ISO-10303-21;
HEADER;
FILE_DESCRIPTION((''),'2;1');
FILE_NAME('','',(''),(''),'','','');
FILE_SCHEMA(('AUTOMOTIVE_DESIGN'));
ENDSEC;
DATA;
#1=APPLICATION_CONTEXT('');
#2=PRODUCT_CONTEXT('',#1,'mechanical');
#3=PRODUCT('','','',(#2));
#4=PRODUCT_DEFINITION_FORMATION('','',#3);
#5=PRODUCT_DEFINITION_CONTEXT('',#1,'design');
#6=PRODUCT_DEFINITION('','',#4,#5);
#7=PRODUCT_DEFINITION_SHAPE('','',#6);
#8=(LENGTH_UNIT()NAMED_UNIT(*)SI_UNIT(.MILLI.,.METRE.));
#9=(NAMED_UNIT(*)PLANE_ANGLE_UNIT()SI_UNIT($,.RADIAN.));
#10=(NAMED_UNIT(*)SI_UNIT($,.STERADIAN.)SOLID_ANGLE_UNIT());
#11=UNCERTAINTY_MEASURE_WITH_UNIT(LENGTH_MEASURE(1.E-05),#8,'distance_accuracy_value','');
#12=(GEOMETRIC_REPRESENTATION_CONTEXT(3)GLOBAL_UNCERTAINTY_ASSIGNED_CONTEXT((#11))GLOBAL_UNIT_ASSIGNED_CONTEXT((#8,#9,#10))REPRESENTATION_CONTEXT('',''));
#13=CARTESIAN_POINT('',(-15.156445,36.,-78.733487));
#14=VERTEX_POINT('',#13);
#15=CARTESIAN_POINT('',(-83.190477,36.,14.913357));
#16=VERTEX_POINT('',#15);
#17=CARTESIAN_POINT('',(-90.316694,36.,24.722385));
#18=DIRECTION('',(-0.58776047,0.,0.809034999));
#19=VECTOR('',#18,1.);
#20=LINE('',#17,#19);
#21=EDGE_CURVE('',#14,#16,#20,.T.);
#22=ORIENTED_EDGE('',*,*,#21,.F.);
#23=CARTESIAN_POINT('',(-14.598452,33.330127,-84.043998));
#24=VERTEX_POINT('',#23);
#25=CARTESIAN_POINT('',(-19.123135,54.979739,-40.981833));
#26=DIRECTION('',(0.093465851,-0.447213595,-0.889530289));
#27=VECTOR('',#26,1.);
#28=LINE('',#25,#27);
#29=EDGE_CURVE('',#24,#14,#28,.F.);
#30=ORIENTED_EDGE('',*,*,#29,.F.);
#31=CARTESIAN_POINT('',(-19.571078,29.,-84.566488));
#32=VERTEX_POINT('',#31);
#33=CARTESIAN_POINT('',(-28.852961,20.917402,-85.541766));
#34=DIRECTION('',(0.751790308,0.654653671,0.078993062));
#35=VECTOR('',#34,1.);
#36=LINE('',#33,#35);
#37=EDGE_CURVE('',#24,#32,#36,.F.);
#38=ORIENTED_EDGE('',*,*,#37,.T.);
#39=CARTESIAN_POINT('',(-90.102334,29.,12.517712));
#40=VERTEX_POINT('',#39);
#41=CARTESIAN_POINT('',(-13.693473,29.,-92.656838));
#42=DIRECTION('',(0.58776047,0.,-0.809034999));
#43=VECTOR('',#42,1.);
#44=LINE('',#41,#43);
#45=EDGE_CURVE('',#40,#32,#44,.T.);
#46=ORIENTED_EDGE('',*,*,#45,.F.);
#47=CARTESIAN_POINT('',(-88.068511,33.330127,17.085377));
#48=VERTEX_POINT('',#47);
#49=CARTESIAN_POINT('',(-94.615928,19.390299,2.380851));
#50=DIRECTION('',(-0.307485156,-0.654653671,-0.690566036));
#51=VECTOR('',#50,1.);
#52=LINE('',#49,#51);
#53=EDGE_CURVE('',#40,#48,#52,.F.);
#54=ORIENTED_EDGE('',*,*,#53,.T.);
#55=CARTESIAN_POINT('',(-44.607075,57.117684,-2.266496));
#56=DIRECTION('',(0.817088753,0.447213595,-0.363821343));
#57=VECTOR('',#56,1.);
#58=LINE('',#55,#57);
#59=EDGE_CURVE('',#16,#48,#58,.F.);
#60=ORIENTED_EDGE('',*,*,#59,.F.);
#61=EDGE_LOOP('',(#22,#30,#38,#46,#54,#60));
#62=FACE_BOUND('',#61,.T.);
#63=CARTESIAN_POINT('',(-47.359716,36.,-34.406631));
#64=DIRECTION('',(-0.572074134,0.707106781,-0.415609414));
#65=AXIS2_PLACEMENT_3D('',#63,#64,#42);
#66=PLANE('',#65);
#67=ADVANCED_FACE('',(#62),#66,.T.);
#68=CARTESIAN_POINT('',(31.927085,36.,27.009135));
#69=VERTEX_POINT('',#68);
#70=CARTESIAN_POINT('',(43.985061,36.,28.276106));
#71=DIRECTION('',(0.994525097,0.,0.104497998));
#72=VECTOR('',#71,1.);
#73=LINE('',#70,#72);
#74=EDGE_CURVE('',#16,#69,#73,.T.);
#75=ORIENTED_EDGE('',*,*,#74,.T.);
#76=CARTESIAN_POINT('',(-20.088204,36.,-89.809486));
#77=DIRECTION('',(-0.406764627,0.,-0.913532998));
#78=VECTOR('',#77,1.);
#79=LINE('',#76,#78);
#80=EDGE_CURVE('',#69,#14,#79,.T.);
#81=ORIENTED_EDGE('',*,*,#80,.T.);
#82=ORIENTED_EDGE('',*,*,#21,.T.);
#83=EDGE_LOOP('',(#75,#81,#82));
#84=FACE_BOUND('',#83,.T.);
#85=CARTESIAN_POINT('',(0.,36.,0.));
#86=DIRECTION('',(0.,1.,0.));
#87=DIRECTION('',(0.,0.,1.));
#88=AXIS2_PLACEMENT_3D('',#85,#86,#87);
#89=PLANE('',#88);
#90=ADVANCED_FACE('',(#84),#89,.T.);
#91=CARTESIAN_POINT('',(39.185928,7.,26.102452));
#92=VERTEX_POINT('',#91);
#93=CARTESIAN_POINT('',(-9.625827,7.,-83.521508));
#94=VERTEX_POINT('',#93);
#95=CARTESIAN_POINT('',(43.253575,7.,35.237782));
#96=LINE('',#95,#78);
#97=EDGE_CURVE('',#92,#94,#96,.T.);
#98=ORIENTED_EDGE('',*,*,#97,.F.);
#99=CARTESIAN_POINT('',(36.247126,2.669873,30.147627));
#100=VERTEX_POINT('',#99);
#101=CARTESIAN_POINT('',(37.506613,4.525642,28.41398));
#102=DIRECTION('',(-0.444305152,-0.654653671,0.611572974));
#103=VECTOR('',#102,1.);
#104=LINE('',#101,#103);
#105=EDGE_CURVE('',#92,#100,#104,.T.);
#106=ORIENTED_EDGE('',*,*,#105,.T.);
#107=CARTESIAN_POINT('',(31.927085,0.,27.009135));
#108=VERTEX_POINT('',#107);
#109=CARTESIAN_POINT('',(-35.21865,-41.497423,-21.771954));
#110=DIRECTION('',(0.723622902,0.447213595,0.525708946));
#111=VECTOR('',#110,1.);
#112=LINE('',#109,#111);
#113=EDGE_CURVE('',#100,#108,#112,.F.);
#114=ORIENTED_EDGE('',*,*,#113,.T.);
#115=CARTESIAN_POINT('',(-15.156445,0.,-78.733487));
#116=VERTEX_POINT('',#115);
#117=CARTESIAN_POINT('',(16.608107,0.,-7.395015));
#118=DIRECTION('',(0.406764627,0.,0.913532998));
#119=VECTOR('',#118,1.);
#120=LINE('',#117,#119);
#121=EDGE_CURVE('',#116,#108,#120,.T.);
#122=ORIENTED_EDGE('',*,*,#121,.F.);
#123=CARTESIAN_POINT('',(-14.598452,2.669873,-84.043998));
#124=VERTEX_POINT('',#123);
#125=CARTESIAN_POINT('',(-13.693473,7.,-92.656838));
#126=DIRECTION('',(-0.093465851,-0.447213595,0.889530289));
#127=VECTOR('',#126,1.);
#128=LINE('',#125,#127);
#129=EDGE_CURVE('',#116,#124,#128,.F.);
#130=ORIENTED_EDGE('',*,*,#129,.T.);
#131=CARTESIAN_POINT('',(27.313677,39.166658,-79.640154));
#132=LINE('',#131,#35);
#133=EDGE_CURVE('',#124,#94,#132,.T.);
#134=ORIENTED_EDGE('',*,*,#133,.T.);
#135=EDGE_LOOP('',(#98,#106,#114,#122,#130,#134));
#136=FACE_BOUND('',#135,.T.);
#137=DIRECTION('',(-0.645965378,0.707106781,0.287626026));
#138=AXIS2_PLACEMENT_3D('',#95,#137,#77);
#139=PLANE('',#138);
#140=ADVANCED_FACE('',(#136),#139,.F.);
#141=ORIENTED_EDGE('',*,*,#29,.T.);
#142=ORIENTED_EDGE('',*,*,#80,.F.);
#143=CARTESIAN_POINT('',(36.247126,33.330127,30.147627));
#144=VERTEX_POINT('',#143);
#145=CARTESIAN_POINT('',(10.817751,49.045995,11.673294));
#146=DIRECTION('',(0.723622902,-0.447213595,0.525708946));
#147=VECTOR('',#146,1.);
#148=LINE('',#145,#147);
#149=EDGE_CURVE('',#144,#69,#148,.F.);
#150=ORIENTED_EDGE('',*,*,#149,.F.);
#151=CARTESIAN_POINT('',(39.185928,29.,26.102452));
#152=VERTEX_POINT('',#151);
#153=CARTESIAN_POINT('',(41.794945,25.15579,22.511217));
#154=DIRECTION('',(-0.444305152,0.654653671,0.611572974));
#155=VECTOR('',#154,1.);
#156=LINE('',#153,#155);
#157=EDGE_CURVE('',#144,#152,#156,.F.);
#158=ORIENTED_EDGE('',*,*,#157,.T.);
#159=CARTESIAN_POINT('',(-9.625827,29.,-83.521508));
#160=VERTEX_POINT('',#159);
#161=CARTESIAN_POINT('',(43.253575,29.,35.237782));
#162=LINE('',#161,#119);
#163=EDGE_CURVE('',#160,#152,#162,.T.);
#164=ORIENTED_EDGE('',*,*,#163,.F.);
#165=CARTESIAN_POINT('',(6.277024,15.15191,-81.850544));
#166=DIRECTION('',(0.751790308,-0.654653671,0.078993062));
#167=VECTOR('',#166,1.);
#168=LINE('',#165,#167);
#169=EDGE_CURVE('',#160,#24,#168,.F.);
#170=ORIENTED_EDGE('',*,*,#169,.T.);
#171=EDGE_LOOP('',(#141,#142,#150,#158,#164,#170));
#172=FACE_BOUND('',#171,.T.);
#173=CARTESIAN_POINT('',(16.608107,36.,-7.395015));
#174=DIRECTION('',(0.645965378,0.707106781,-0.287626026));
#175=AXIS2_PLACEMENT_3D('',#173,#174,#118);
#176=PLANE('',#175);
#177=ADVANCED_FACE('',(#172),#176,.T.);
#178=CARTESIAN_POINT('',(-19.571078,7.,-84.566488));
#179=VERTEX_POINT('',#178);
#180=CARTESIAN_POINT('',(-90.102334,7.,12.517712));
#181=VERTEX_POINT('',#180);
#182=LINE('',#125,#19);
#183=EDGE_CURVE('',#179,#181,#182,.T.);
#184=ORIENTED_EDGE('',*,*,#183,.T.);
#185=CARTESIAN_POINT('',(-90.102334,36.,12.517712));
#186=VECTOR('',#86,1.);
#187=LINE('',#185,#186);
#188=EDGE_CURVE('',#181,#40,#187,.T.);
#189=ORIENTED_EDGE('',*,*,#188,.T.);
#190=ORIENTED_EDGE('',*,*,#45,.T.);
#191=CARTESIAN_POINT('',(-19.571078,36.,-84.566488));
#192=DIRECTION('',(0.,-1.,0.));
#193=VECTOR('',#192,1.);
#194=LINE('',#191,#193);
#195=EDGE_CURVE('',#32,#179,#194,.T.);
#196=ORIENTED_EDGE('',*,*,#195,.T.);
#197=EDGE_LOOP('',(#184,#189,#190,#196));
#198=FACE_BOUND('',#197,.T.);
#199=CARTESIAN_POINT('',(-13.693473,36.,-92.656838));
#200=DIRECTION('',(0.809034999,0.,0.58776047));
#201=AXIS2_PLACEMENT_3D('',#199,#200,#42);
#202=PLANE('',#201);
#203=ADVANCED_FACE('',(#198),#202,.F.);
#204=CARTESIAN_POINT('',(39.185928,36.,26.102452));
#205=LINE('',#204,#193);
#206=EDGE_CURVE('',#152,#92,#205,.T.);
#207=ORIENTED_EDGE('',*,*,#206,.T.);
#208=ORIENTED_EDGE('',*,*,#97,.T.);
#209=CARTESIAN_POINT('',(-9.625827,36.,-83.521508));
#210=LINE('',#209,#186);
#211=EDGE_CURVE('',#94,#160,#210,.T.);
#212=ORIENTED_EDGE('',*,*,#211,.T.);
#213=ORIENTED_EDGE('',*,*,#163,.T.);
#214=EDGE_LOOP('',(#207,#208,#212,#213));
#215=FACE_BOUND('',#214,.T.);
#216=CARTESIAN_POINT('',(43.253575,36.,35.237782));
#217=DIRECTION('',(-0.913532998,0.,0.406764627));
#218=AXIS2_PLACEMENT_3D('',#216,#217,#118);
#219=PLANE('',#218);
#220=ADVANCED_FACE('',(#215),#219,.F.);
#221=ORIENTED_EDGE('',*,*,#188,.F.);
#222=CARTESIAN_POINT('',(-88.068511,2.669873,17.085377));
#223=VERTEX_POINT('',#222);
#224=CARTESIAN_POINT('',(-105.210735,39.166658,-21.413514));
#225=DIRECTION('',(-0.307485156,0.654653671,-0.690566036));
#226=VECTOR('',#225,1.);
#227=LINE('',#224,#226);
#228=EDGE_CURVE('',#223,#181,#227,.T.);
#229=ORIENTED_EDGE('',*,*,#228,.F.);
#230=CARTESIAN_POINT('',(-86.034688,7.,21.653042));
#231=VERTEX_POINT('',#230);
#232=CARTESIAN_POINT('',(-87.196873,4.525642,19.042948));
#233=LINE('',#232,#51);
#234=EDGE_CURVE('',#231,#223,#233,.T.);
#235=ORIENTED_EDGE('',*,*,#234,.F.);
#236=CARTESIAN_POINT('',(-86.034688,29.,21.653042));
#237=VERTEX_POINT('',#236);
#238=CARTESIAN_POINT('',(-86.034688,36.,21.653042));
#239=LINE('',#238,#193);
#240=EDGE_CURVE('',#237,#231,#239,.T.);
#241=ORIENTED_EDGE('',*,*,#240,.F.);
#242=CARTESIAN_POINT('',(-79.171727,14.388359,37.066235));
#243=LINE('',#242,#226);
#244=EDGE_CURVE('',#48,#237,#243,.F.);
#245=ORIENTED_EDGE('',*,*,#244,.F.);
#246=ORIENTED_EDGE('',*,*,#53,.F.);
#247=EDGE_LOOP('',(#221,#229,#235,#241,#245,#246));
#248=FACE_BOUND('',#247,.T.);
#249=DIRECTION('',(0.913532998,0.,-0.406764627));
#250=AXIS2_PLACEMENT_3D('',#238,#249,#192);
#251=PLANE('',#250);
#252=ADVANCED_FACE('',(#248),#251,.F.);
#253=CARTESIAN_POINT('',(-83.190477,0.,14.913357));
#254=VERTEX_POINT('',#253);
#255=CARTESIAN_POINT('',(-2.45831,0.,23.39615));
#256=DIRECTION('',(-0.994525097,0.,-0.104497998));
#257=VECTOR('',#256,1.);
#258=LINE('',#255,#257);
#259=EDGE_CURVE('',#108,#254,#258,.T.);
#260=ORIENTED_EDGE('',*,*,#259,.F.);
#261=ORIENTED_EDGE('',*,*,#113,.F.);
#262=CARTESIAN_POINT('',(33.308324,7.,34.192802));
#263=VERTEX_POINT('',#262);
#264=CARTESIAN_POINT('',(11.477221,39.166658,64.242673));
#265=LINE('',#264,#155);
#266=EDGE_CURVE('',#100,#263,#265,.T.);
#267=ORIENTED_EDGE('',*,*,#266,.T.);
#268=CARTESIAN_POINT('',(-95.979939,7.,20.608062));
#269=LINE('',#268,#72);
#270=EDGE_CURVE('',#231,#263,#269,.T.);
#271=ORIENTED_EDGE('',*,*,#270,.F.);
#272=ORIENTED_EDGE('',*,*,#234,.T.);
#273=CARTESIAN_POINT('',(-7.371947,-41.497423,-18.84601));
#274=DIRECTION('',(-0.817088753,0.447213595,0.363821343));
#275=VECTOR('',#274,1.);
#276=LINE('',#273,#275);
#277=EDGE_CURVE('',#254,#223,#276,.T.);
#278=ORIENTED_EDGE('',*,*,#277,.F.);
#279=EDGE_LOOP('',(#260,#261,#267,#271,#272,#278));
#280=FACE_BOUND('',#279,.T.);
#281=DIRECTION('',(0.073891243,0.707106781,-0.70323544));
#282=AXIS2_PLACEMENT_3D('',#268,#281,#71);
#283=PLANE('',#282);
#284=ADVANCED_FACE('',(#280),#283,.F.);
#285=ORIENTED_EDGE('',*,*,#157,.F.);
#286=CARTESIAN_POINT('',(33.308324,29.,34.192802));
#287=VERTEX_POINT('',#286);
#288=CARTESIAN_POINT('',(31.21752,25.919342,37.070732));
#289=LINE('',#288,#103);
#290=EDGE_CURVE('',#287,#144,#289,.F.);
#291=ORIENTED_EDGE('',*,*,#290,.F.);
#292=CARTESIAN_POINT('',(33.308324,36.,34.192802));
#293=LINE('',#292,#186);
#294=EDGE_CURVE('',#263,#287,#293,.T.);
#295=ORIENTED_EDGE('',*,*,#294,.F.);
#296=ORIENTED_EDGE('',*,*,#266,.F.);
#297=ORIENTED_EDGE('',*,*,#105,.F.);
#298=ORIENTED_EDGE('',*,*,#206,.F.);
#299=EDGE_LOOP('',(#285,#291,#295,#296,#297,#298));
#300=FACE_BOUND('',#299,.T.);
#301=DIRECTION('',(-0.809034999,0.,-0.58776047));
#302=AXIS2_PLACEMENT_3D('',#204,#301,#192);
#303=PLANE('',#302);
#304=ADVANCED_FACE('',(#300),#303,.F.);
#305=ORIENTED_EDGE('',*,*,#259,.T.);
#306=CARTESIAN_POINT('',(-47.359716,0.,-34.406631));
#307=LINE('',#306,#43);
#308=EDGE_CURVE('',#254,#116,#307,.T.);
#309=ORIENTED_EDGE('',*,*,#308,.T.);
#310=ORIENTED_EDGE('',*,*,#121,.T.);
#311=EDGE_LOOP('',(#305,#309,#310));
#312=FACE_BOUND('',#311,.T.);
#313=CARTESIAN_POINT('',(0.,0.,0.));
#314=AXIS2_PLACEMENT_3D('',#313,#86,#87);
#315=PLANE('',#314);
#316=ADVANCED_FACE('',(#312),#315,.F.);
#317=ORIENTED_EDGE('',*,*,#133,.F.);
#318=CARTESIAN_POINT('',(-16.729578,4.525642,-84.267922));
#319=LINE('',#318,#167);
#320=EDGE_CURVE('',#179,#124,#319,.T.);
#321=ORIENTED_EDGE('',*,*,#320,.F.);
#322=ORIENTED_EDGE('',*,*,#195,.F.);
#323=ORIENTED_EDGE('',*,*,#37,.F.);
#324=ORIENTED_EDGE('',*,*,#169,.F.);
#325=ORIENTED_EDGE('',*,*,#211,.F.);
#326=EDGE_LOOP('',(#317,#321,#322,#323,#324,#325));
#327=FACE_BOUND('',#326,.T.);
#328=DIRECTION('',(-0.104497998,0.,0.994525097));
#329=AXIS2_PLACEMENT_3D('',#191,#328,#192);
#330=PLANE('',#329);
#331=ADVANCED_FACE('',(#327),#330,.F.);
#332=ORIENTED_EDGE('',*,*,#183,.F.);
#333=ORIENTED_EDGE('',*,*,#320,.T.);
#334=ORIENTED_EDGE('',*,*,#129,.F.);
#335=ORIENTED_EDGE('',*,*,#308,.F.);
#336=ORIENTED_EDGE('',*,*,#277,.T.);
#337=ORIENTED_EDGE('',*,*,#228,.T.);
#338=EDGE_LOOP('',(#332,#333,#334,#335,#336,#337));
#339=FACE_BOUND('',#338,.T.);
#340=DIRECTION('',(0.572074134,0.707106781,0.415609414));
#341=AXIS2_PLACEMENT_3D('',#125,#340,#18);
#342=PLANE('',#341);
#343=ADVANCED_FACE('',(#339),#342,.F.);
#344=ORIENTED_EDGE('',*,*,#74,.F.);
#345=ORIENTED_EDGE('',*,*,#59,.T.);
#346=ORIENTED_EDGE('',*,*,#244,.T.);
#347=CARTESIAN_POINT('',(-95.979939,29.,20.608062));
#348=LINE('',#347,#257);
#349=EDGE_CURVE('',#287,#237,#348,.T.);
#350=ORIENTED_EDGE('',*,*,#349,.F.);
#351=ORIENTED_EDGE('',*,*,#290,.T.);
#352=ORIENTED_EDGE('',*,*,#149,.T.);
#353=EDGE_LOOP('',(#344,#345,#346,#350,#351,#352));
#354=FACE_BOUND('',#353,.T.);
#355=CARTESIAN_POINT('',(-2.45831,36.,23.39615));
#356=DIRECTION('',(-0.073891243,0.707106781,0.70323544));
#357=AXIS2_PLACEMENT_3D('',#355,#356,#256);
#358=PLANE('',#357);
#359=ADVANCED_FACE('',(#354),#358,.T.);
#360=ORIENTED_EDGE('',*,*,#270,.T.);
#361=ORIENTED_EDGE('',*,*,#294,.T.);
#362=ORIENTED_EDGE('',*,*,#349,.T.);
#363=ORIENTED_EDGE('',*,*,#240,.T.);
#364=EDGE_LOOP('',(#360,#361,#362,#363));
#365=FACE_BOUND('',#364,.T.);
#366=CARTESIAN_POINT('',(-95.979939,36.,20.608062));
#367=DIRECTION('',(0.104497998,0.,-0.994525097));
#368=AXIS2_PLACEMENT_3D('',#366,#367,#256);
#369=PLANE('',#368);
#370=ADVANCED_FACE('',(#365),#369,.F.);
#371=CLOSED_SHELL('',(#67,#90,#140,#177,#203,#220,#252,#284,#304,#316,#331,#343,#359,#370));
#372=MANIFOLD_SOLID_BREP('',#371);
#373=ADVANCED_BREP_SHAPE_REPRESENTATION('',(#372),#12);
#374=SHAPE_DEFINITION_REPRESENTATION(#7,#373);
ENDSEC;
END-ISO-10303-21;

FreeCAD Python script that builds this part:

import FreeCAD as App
import Part
import Sketcher

V = App.Vector
Q = App.Units.Quantity


def edges_at(feature, points):
    """Names of the edges that pass closest to the given points."""
    edges = feature.Shape.Edges
    near = lambda p: min(range(len(edges)), key=lambda i: edges[i].distToShape(Part.Vertex(*p))[0])
    return sorted({f"Edge{near(p) + 1}" for p in points})

doc = App.newDocument("Part")
body = doc.addObject("PartDesign::Body", "Body")

sketch1 = body.newObject("Sketcher::SketchObject", "Sketch")
sketch1.AttachmentSupport = (doc.getObject("XZ_Plane"), [""])
sketch1.MapMode = "FlatFace"
sketch1.addGeometry(Part.LineSegment(V(43.253575, 35.237782, 0), V(-13.693473, -92.656838, 0)), False)
sketch1.addGeometry(Part.LineSegment(V(-13.693473, -92.656838, 0), V(-95.979939, 20.608062, 0)), False)
sketch1.addGeometry(Part.LineSegment(V(-95.979939, 20.608062, 0), V(43.253575, 35.237782, 0)), False)
sketch1.addConstraint(Sketcher.Constraint("Coincident", 0, 2, 1, 1))
sketch1.addConstraint(Sketcher.Constraint("Coincident", 1, 2, 2, 1))
sketch1.addConstraint(Sketcher.Constraint("Coincident", 2, 2, 0, 1))
sketch1.addConstraint(Sketcher.Constraint("Equal", 0, 1))
sketch1.addConstraint(Sketcher.Constraint("Equal", 1, 2))
sketch1.addConstraint(Sketcher.Constraint("Distance", 0, Q("140 mm")))
sketch1.addConstraint(Sketcher.Constraint("DistanceY", 0, 2, 1, 2, Q("113.2649 mm")))
sketch1.addConstraint(Sketcher.Constraint("DistanceX", 1, 2, -1, 1, Q("95.979939 mm")))
sketch1.addConstraint(Sketcher.Constraint("DistanceY", -1, 1, 1, 2, Q("20.608062 mm")))
pad1 = body.newObject("PartDesign::Pad", "Pad")
pad1.Profile = sketch1
pad1.Length = 36
pad1.Reversed = True
doc.recompute()

chamfer = body.newObject("PartDesign::Chamfer", "Chamfer")
chamfer.Base = (pad1, edges_at(pad1, [
    (-54.837, 36, -36.024),
    (-54.837, 0, -36.024),
    (-26.363, 36, 27.923),
    (14.78, 0, -28.71),
    (-26.363, 0, 27.923),
    (14.78, 36, -28.71),
]))
chamfer.Size = 7
doc.recompute()

chamfer2 = body.newObject("PartDesign::Chamfer", "Chamfer001")
chamfer2.Base = (chamfer, edges_at(chamfer, [(-13.693, 18, -92.657), (43.254, 18, 35.238), (-95.98, 18, 20.608)]))
chamfer2.Size = 10

doc.recompute()
